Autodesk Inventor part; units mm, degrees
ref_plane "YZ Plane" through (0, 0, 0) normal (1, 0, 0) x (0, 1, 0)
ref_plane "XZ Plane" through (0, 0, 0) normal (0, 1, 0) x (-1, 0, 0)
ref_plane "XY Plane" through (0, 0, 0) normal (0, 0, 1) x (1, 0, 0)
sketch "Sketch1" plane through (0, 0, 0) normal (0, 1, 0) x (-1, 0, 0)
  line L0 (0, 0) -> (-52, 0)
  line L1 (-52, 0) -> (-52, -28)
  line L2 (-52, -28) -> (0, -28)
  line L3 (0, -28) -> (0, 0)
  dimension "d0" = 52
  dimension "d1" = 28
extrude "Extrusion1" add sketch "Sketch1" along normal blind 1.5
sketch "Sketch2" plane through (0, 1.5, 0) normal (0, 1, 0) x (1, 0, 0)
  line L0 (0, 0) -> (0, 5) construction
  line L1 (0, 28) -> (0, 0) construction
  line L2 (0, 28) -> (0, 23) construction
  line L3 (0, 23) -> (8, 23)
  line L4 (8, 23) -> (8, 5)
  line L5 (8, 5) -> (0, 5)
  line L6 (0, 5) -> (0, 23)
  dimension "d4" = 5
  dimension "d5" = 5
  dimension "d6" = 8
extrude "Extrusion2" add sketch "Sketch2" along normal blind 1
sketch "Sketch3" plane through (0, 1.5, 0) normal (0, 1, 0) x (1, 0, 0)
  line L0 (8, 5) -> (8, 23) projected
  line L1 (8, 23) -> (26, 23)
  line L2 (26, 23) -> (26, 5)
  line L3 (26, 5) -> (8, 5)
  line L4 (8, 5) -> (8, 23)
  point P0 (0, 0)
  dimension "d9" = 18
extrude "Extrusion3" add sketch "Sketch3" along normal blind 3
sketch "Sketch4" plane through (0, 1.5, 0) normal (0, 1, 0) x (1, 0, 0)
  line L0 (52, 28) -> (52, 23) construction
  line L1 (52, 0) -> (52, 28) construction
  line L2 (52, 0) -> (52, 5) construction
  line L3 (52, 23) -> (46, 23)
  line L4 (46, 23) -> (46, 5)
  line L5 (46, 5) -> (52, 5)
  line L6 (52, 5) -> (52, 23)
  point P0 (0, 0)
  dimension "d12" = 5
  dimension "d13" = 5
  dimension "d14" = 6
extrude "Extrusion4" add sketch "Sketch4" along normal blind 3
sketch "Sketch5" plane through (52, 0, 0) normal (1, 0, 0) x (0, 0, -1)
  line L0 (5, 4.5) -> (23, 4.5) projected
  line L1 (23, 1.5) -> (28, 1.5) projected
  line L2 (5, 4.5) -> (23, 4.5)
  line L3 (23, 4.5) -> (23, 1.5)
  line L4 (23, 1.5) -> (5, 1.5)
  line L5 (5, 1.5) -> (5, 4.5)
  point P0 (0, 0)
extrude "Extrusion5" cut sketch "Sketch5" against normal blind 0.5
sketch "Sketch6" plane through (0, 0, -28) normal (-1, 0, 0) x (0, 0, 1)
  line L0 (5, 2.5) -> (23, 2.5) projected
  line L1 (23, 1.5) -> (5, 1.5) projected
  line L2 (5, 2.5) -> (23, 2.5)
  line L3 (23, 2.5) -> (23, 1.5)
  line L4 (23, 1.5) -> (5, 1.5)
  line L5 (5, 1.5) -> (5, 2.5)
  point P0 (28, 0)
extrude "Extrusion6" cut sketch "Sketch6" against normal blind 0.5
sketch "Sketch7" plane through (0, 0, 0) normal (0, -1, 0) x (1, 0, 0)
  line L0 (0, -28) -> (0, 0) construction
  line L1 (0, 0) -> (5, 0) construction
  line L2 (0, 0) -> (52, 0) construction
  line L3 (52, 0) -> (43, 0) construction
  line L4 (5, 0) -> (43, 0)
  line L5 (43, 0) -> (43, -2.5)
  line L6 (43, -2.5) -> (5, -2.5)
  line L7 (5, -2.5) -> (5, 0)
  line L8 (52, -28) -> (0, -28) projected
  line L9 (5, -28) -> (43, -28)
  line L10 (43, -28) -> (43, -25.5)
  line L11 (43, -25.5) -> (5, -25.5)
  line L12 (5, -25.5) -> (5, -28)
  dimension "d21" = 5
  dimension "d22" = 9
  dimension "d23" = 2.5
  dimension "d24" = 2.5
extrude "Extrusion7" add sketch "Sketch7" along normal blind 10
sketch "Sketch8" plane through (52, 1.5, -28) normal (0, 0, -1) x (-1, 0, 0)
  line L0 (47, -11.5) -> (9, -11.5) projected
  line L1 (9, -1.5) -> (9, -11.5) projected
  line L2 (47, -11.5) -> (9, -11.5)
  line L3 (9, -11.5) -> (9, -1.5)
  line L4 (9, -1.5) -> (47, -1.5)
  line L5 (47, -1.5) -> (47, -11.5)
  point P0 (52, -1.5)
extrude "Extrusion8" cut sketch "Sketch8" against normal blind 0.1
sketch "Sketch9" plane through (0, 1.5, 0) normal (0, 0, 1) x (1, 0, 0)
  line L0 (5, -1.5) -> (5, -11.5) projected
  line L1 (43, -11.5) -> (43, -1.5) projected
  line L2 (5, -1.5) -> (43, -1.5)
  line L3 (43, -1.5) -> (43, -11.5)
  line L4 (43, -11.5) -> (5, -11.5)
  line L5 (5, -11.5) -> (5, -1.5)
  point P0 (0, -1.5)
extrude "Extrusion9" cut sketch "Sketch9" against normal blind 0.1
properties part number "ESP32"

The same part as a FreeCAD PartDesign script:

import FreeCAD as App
import Part
import Sketcher
from FreeCAD import Vector


def add_polygon(sketch, points):
    """Adds a closed chain of lines whose ends are joined by coincident constraints."""
    first, n = sketch.GeometryCount, len(points)
    for a, b in zip(points, points[1:] + points[:1]):
        sketch.addGeometry(Part.LineSegment(App.Vector(*a, 0), App.Vector(*b, 0)), False)
    for i in range(n):
        sketch.addConstraint(Sketcher.Constraint("Coincident", first + i, 2, first + (i + 1) % n, 1))

doc = App.newDocument("Part")
body = doc.addObject("PartDesign::Body", "Body")

# Sketch on XZ plane
sketch1 = doc.addObject("Sketcher::SketchObject", "Sketch")
body.addObject(sketch1)
sketch1.AttachmentSupport = (doc.XZ_Plane, [""])
sketch1.MapMode = "FlatFace"
add_polygon(sketch1, [(0, -28), (0, 0), (52, 0), (52, -28)])  # lines 0-3
sketch1.addConstraint([
    Sketcher.Constraint("Vertical", 0),
    Sketcher.Constraint("Horizontal", 1),
    Sketcher.Constraint("Vertical", 2),
    Sketcher.Constraint("Horizontal", 3),
    Sketcher.Constraint("Coincident", 0, 2, -1, 1),
    Sketcher.Constraint("DistanceX", 1, 1, 1, 2, 52.0),
    Sketcher.Constraint("DistanceY", 0, 1, 0, 2, 28.0),
])
pad1 = doc.addObject("PartDesign::Pad", "Pad")
body.addObject(pad1)
pad1.Profile = sketch1
pad1.Length = 1.5
pad1.Reversed = True

# Sketch on XZ plane
sketch2 = doc.addObject("Sketcher::SketchObject", "Sketch001")
body.addObject(sketch2)
sketch2.AttachmentSupport = (doc.XZ_Plane, [""])
sketch2.MapMode = "FlatFace"
sketch2.AttachmentOffset = App.Placement(Vector(0, 0, -1.5), App.Rotation())
add_polygon(sketch2, [(8, -23), (0, -23), (0, -5), (8, -5)])  # lines 0-3
sketch2.addConstraint([
    Sketcher.Constraint("Horizontal", 0),
    Sketcher.Constraint("Vertical", 1),
    Sketcher.Constraint("Horizontal", 2),
    Sketcher.Constraint("Vertical", 3),
    Sketcher.Constraint("PointOnObject", 0, 2, -2),
    Sketcher.Constraint("DistanceX", 0, 2, 0, 1, 8.0),
    Sketcher.Constraint("DistanceY", 1, 2, -1, 1, 5.0),
    Sketcher.Constraint("DistanceY", 1, 1, 1, 2, 18.0),
])
pad2 = doc.addObject("PartDesign::Pad", "Pad001")
body.addObject(pad2)
pad2.Profile = sketch2
pad2.Length = 1
pad2.Reversed = True

# Sketch on XZ plane
sketch3 = doc.addObject("Sketcher::SketchObject", "Sketch002")
body.addObject(sketch3)
sketch3.AttachmentSupport = (doc.XZ_Plane, [""])
sketch3.MapMode = "FlatFace"
sketch3.AttachmentOffset = App.Placement(Vector(0, 0, -1.5), App.Rotation())
add_polygon(sketch3, [(8, -23), (8, -5), (26, -5), (26, -23)])  # lines 0-3
sketch3.addConstraint([
    Sketcher.Constraint("Vertical", 0),
    Sketcher.Constraint("Horizontal", 1),
    Sketcher.Constraint("Vertical", 2),
    Sketcher.Constraint("Horizontal", 3),
    Sketcher.Constraint("Equal", 3, 0),
    Sketcher.Constraint("DistanceX", 1, 1, 1, 2, 18.0),
    Sketcher.Constraint("DistanceX", -1, 1, 0, 2, 8.0),
    Sketcher.Constraint("DistanceY", 0, 2, -1, 1, 5.0),
])
pad3 = doc.addObject("PartDesign::Pad", "Pad002")
body.addObject(pad3)
pad3.Profile = sketch3
pad3.Length = 3
pad3.Reversed = True

# Sketch on XZ plane
sketch4 = doc.addObject("Sketcher::SketchObject", "Sketch003")
body.addObject(sketch4)
sketch4.AttachmentSupport = (doc.XZ_Plane, [""])
sketch4.MapMode = "FlatFace"
sketch4.AttachmentOffset = App.Placement(Vector(0, 0, -1.5), App.Rotation())
add_polygon(sketch4, [(52, -5), (52, -23), (46, -23), (46, -5)])  # lines 0-3
sketch4.addConstraint([
    Sketcher.Constraint("Vertical", 0),
    Sketcher.Constraint("Horizontal", 1),
    Sketcher.Constraint("Vertical", 2),
    Sketcher.Constraint("Horizontal", 3),
    Sketcher.Constraint("DistanceX", 1, 2, 1, 1, 6.0),
    Sketcher.Constraint("DistanceY", 2, 2, -1, 1, 5.0),
    Sketcher.Constraint("DistanceY", 0, 2, 0, 1, 18.0),
    Sketcher.Constraint("DistanceX", -1, 1, 0, 2, 52.0),
])
pad4 = doc.addObject("PartDesign::Pad", "Pad003")
body.addObject(pad4)
pad4.Profile = sketch4
pad4.Length = 3
pad4.Reversed = True

# Sketch on YZ plane
sketch5 = doc.addObject("Sketcher::SketchObject", "Sketch004")
body.addObject(sketch5)
sketch5.AttachmentSupport = (doc.YZ_Plane, [""])
sketch5.MapMode = "FlatFace"
sketch5.AttachmentOffset = App.Placement(Vector(0, 0, 52), App.Rotation())
add_polygon(sketch5, [(4.5, -23), (4.5, -5), (1.5, -5), (1.5, -23)])  # lines 0-3
sketch5.addConstraint([
    Sketcher.Constraint("Vertical", 0),
    Sketcher.Constraint("Horizontal", 1),
    Sketcher.Constraint("Vertical", 2),
    Sketcher.Constraint("Horizontal", 3),
    Sketcher.Constraint("DistanceX", 1, 2, 1, 1, 3.0),
    Sketcher.Constraint("DistanceY", 0, 1, 0, 2, 18.0),
    Sketcher.Constraint("DistanceY", 0, 2, -1, 1, 5.0),
    Sketcher.Constraint("DistanceX", -1, 1, 0, 2, 4.5),
])
pocket1 = doc.addObject("PartDesign::Pocket", "Pocket")
body.addObject(pocket1)
pocket1.Profile = sketch5
pocket1.Length = 0.5

# Sketch on YZ plane
sketch6 = doc.addObject("Sketcher::SketchObject", "Sketch005")
body.addObject(sketch6)
sketch6.AttachmentSupport = (doc.YZ_Plane, [""])
sketch6.MapMode = "FlatFace"
add_polygon(sketch6, [(2.5, -5), (2.5, -23), (1.5, -23), (1.5, -5)])  # lines 0-3
sketch6.addConstraint([
    Sketcher.Constraint("Vertical", 0),
    Sketcher.Constraint("Horizontal", 1),
    Sketcher.Constraint("Vertical", 2),
    Sketcher.Constraint("Horizontal", 3),
    Sketcher.Constraint("DistanceX", 1, 2, 1, 1, 1.0),
    Sketcher.Constraint("DistanceY", 0, 2, 0, 1, 18.0),
    Sketcher.Constraint("DistanceY", 0, 2, -1, 1, 23.0),
    Sketcher.Constraint("DistanceX", -1, 1, 0, 2, 2.5),
])
pocket2 = doc.addObject("PartDesign::Pocket", "Pocket001")
body.addObject(pocket2)
pocket2.Profile = sketch6
pocket2.Length = 0.5
pocket2.Reversed = True

# Sketch on XZ plane
sketch7 = doc.addObject("Sketcher::SketchObject", "Sketch006")
body.addObject(sketch7)
sketch7.AttachmentSupport = (doc.XZ_Plane, [""])
sketch7.MapMode = "FlatFace"
add_polygon(sketch7, [(43, 0), (5, 0), (5, -2.5), (43, -2.5)])  # lines 0-3
add_polygon(sketch7, [(5, -28), (43, -28), (43, -25.5), (5, -25.5)])  # lines 4-7
sketch7.addConstraint([
    Sketcher.Constraint("Horizontal", 0),
    Sketcher.Constraint("Vertical", 1),
    Sketcher.Constraint("Horizontal", 2),
    Sketcher.Constraint("Vertical", 3),
    Sketcher.Constraint("Horizontal", 4),
    Sketcher.Constraint("Vertical", 5),
    Sketcher.Constraint("Horizontal", 6),
    Sketcher.Constraint("Vertical", 7),
    Sketcher.Constraint("PointOnObject", 0, 2, -1),
    Sketcher.Constraint("Vertical", 3, 2, 4, 2),
    Sketcher.Constraint("Vertical", 1, 2, 6, 2),
    Sketcher.Constraint("Equal", 3, 5),
    Sketcher.Constraint("DistanceY", 1, 2, 1, 1, 2.5),
    Sketcher.Constraint("DistanceX", -1, 1, 0, 2, 5.0),
    Sketcher.Constraint("DistanceX", 0, 2, 0, 1, 38.0),
    Sketcher.Constraint("DistanceY", 4, 2, -1, 1, 28.0),
])
pad5 = doc.addObject("PartDesign::Pad", "Pad004")
body.addObject(pad5)
pad5.Profile = sketch7
pad5.Length = 10

# Sketch on XY plane
sketch8 = doc.addObject("Sketcher::SketchObject", "Sketch007")
body.addObject(sketch8)
sketch8.AttachmentSupport = (doc.XY_Plane, [""])
sketch8.MapMode = "FlatFace"
sketch8.AttachmentOffset = App.Placement(Vector(0, 0, -28), App.Rotation())
add_polygon(sketch8, [(43, -10), (5, -10), (5, 0), (43, 0)])  # lines 0-3
sketch8.addConstraint([
    Sketcher.Constraint("Horizontal", 0),
    Sketcher.Constraint("Vertical", 1),
    Sketcher.Constraint("Horizontal", 2),
    Sketcher.Constraint("Vertical", 3),
    Sketcher.Constraint("PointOnObject", 1, 2, -1),
    Sketcher.Constraint("DistanceX", 0, 2, 0, 1, 38.0),
    Sketcher.Constraint("DistanceY", 1, 1, 1, 2, 10.0),
    Sketcher.Constraint("DistanceX", -1, 1, 0, 2, 5.0),
])
pocket3 = doc.addObject("PartDesign::Pocket", "Pocket002")
body.addObject(pocket3)
pocket3.Profile = sketch8
pocket3.Length = 0.1
pocket3.Reversed = True

# Sketch on XY plane
sketch9 = doc.addObject("Sketcher::SketchObject", "Sketch008")
body.addObject(sketch9)
sketch9.AttachmentSupport = (doc.XY_Plane, [""])
sketch9.MapMode = "FlatFace"
add_polygon(sketch9, [(43, 0), (5, 0), (5, -10), (43, -10)])  # lines 0-3
sketch9.addConstraint([
    Sketcher.Constraint("Horizontal", 0),
    Sketcher.Constraint("Vertical", 1),
    Sketcher.Constraint("Horizontal", 2),
    Sketcher.Constraint("Vertical", 3),
    Sketcher.Constraint("PointOnObject", 0, 2, -1),
    Sketcher.Constraint("DistanceX", 0, 2, 0, 1, 38.0),
    Sketcher.Constraint("DistanceY", 1, 2, 1, 1, 10.0),
    Sketcher.Constraint("DistanceX", -1, 1, 0, 2, 5.0),
])
pocket4 = doc.addObject("PartDesign::Pocket", "Pocket003")
body.addObject(pocket4)
pocket4.Profile = sketch9
pocket4.Length = 0.1

doc.recompute()
